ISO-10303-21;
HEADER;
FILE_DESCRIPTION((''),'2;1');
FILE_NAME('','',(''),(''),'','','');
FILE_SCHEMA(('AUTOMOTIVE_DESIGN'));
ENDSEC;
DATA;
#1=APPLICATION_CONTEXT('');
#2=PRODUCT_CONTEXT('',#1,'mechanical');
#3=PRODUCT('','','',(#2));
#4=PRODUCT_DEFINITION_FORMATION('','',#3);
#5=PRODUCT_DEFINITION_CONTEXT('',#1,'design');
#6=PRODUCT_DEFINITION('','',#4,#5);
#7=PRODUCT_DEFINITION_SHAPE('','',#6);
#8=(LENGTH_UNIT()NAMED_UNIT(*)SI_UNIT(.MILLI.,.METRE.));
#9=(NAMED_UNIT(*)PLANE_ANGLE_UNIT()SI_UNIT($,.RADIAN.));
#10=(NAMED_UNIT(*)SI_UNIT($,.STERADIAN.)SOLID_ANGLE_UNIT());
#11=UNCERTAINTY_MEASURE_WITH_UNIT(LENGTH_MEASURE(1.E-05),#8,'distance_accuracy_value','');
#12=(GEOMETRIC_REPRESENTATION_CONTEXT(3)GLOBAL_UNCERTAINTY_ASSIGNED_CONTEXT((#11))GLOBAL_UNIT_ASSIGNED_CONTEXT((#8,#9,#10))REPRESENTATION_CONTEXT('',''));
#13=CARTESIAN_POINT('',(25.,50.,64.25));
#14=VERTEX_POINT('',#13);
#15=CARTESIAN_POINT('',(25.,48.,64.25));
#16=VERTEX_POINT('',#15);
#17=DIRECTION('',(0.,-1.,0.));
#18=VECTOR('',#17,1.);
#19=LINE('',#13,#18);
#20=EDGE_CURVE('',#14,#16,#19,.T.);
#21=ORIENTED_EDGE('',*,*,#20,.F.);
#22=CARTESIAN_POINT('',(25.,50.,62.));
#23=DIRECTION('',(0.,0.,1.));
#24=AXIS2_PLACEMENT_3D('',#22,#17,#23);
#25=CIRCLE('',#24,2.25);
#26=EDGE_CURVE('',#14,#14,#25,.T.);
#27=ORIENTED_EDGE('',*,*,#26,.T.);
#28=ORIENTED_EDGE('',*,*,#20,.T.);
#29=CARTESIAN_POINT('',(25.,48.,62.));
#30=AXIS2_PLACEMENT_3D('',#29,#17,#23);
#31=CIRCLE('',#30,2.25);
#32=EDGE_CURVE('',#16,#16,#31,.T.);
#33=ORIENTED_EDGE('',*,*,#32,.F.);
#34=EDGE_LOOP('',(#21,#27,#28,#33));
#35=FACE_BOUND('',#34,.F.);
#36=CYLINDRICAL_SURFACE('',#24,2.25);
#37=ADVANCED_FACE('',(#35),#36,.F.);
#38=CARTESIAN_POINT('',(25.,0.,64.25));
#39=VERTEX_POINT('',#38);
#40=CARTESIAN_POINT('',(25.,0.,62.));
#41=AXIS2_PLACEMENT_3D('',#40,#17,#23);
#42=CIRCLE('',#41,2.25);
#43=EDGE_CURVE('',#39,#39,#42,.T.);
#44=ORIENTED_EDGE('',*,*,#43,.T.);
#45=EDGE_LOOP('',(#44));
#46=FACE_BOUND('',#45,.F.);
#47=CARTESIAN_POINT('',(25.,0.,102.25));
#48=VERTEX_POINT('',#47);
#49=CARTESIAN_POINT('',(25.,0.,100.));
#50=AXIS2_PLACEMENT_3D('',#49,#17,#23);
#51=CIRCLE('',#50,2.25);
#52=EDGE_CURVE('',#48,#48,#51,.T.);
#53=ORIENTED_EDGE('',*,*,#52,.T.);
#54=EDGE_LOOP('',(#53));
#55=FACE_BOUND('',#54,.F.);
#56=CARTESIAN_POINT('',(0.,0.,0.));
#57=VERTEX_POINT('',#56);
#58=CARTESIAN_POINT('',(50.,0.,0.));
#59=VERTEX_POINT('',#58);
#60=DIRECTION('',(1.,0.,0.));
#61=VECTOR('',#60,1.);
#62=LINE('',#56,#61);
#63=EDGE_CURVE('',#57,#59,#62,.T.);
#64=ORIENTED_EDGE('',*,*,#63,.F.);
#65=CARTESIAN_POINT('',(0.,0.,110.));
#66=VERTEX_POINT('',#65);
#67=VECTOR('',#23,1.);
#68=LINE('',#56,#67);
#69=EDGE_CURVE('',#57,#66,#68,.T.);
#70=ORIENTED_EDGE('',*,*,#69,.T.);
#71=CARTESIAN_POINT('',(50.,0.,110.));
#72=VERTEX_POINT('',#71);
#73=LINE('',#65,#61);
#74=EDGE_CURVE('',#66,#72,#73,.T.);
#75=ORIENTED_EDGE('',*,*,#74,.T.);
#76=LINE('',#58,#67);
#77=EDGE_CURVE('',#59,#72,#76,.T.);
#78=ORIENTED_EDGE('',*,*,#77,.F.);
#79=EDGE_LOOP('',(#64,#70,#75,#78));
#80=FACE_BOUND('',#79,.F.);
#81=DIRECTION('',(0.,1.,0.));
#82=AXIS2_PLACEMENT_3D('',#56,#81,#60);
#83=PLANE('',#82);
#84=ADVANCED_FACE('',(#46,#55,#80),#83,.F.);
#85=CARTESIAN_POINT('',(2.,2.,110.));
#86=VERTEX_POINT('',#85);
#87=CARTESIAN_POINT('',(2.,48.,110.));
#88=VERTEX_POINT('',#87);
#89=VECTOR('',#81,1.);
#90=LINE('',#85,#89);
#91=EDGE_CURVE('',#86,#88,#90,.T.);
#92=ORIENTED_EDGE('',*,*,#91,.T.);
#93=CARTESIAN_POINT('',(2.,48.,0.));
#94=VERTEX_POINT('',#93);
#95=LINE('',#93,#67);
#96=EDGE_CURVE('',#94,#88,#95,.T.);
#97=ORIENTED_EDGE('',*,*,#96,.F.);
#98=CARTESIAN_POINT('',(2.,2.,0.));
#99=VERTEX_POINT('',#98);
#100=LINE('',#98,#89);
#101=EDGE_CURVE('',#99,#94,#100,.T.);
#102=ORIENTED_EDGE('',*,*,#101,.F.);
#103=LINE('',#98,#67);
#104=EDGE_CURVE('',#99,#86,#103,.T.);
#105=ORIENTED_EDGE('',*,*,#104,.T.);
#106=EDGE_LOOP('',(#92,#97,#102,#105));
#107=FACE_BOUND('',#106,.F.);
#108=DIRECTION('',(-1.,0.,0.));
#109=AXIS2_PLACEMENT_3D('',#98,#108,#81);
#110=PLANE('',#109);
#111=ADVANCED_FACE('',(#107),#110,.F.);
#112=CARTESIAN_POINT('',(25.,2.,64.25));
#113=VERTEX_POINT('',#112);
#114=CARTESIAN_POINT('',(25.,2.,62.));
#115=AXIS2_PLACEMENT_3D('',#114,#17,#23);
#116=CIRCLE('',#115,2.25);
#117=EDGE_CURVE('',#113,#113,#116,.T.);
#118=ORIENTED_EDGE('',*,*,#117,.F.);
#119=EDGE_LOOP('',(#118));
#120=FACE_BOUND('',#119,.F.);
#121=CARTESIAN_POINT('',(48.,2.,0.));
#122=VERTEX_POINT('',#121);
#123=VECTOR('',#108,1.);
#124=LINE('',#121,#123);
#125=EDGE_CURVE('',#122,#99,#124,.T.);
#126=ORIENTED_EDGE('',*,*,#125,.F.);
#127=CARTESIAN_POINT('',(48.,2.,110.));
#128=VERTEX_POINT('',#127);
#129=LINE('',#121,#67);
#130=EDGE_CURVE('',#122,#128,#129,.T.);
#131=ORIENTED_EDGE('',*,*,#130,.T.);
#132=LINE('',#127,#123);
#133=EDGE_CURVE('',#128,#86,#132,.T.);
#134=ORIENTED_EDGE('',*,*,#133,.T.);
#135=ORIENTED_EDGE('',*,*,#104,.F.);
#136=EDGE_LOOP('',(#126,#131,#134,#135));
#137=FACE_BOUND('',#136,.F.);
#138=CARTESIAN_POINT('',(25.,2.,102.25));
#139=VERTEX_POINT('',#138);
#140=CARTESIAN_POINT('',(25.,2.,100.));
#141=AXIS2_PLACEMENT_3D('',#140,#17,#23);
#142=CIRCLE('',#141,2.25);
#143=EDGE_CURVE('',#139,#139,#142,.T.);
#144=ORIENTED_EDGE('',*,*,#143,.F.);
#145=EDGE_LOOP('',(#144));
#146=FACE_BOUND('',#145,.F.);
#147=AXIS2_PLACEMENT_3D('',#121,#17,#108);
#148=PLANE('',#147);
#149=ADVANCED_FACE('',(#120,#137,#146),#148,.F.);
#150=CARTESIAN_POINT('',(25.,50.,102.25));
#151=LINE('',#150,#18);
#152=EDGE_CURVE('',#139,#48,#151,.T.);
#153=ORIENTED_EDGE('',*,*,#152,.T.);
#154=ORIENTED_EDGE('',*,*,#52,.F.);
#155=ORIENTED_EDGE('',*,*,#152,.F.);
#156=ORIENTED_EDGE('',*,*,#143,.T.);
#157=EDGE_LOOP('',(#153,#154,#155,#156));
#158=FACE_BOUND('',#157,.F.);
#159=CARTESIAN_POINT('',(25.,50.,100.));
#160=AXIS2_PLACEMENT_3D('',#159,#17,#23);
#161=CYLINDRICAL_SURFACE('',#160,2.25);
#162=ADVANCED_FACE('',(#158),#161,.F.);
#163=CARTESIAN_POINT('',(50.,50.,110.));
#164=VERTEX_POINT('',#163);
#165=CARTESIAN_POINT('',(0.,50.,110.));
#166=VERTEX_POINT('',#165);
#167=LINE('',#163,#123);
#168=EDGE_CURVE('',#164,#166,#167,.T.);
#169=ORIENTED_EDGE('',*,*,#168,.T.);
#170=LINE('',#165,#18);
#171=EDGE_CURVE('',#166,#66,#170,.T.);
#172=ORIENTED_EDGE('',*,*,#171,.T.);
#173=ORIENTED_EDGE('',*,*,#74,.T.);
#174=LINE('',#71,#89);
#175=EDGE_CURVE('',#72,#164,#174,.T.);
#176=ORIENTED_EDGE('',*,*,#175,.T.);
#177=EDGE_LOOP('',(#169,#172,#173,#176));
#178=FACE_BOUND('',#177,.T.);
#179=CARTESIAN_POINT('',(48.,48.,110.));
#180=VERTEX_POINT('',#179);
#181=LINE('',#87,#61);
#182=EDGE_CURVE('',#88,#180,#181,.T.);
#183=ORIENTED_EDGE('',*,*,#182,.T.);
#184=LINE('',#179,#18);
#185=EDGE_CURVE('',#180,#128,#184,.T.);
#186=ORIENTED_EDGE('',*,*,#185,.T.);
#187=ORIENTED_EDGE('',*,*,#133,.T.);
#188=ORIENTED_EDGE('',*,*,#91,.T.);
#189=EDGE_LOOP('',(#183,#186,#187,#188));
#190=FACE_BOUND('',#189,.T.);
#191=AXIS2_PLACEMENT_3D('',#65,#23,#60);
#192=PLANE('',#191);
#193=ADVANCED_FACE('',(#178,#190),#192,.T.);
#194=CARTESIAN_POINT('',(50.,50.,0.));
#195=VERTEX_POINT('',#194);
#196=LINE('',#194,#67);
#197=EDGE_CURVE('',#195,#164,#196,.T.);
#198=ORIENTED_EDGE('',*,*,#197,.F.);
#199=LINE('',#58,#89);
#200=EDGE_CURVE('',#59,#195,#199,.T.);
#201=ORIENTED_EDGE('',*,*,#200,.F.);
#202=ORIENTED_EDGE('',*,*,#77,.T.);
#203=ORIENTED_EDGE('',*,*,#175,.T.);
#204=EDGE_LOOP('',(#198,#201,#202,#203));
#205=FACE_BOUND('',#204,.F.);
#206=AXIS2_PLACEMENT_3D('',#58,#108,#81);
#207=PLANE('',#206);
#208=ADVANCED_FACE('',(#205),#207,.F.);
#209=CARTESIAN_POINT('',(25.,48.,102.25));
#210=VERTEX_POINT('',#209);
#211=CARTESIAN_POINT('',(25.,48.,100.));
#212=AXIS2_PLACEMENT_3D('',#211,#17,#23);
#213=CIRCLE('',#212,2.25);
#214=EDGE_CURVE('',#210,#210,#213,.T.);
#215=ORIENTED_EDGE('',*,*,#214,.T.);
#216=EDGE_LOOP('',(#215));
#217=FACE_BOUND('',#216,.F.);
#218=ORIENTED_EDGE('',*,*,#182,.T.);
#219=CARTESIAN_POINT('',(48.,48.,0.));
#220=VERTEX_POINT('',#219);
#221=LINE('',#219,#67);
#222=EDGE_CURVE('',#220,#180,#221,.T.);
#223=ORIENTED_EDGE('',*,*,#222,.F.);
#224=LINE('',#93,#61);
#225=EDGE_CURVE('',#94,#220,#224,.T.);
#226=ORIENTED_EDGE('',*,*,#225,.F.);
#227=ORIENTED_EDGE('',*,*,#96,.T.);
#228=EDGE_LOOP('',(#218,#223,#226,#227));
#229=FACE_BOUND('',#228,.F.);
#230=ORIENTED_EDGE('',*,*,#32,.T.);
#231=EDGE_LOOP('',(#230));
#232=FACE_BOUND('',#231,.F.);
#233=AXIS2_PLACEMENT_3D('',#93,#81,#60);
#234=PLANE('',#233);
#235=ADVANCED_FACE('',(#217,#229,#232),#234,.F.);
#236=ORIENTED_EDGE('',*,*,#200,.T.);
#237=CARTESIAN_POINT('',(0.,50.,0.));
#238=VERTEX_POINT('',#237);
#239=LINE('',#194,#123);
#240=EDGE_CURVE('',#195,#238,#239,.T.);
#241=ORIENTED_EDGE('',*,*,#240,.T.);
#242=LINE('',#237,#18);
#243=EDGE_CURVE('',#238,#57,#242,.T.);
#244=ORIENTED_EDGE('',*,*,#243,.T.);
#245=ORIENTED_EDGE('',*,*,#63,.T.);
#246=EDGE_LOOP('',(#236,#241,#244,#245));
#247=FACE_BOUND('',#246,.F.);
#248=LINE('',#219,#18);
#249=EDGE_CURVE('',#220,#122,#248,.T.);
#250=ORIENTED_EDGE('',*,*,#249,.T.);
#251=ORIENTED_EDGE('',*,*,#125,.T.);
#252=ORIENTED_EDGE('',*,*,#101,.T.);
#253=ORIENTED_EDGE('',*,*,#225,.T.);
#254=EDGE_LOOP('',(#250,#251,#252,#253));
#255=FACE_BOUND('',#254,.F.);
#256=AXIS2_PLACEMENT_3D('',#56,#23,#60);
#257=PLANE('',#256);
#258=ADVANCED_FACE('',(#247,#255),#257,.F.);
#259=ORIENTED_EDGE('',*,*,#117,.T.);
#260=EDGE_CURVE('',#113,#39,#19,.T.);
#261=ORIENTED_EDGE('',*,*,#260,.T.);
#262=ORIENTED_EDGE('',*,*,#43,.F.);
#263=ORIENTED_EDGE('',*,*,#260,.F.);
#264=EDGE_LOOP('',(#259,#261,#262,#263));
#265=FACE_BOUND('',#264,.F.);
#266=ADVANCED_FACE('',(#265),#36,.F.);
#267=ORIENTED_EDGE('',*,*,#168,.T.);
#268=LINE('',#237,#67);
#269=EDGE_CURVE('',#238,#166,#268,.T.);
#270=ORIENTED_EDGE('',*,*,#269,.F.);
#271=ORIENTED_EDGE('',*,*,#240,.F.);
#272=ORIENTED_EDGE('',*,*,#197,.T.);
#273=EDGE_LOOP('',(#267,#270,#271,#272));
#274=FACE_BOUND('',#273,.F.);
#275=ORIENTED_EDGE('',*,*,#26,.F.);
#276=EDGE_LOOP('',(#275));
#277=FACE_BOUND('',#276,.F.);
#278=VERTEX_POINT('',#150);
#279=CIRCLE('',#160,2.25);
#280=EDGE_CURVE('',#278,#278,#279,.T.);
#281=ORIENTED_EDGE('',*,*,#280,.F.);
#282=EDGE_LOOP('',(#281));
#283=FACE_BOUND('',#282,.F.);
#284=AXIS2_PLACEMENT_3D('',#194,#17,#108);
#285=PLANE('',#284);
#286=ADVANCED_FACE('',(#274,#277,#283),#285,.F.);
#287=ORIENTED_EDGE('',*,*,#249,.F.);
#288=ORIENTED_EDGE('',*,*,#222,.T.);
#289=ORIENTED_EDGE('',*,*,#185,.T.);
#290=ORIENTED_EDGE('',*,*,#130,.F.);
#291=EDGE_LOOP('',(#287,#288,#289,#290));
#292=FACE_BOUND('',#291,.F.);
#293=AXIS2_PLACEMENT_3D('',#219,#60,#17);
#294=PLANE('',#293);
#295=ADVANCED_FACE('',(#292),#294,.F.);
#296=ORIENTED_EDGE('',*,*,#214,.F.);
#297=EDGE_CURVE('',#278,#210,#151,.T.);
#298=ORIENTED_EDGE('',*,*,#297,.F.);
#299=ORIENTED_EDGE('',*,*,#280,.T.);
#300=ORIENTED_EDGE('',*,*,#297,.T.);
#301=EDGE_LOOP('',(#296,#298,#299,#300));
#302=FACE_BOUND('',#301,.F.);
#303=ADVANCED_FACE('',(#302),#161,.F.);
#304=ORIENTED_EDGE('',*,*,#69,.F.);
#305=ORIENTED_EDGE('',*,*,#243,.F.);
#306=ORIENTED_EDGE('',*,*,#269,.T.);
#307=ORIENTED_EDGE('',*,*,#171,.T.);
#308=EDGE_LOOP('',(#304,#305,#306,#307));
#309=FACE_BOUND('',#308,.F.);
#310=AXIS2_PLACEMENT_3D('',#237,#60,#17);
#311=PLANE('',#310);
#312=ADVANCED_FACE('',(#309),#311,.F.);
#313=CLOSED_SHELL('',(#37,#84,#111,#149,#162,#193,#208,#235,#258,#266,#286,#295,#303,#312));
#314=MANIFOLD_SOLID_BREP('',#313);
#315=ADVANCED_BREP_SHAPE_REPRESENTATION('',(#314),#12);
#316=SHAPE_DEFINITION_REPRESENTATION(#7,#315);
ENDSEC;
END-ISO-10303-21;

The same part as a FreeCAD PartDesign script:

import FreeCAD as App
import Part
import Sketcher
from FreeCAD import Vector
Q = App.Units.Quantity


def add_polygon(sketch, points):
    """Adds a closed chain of lines whose ends are joined by coincident constraints."""
    first, n = sketch.GeometryCount, len(points)
    for a, b in zip(points, points[1:] + points[:1]):
        sketch.addGeometry(Part.LineSegment(App.Vector(*a, 0), App.Vector(*b, 0)), False)
    for i in range(n):
        sketch.addConstraint(Sketcher.Constraint("Coincident", first + i, 2, first + (i + 1) % n, 1))

doc = App.newDocument("Part")
params = doc.addObject("Spreadsheet::Sheet", "Params")
for row, (alias, value) in enumerate([
    ("sketch1_width", "50 mm"),
    ("pad1_length", "110 mm"),
    ("sketch2_diameter", "4.5 mm"),
    ("hole_diameter", "4.5 mm"),
], start=1):
    params.set(f"A{row}", alias)
    params.set(f"B{row}", "=" + value)
    params.setAlias(f"B{row}", alias)

body = doc.addObject("PartDesign::Body", "Body")

sketch1 = body.newObject("Sketcher::SketchObject", "Sketch")
sketch1.AttachmentSupport = (doc.getObject("XY_Plane"), [""])
sketch1.MapMode = "FlatFace"
add_polygon(sketch1, [(0, 50), (0, 0), (50, 0), (50, 50)])
add_polygon(sketch1, [(2, 2), (2, 48), (48, 48), (48, 2)])
sketch1.addConstraint([
    Sketcher.Constraint("Vertical", 0),
    Sketcher.Constraint("Horizontal", 1),
    Sketcher.Constraint("Vertical", 2),
    Sketcher.Constraint("Horizontal", 3),
    Sketcher.Constraint("Vertical", 4),
    Sketcher.Constraint("Horizontal", 5),
    Sketcher.Constraint("Vertical", 6),
    Sketcher.Constraint("Horizontal", 7),
    Sketcher.Constraint("Coincident", 0, 2, -1, 1),
    Sketcher.Constraint("Equal", 3, 0),
    Sketcher.Constraint("Equal", 7, 4),
    Sketcher.Constraint("DistanceX", 1, 1, 1, 2, Q("50 mm")),
    Sketcher.Constraint("DistanceX", -1, 1, 4, 2, Q("2 mm")),
    Sketcher.Constraint("DistanceY", -1, 1, 6, 2, Q("2 mm")),
    Sketcher.Constraint("DistanceY", 4, 2, 3, 2, Q("2 mm")),
])
sketch1.setExpression("Constraints[19]", "Params.sketch1_width")
pad1 = body.newObject("PartDesign::Pad", "Pad")
pad1.Profile = sketch1
pad1.setExpression("Length", "Params.pad1_length")

sketch2 = body.newObject("Sketcher::SketchObject", "Sketch001")
sketch2.AttachmentSupport = (doc.getObject("XZ_Plane"), [""])
sketch2.MapMode = "FlatFace"
sketch2.AttachmentOffset = App.Placement(Vector(0, 0, -50), App.Rotation())
sketch2.addGeometry([
    Part.Circle(Vector(25, 62, 0), Vector(0, 0, 1), 2.25),
    Part.Circle(Vector(25, 100, 0), Vector(0, 0, 1), 2.25),
], False)
sketch2.addConstraint([
    Sketcher.Constraint("Equal", 0, 1),
    Sketcher.Constraint("Vertical", 0, 3, 1, 3),
    Sketcher.Constraint("Diameter", 0, Q("4.5 mm")),
    Sketcher.Constraint("DistanceX", -1, 1, 0, 3, Q("25 mm")),
    Sketcher.Constraint("DistanceY", -1, 1, 0, 3, Q("62 mm")),
    Sketcher.Constraint("DistanceY", -1, 1, 1, 3, Q("100 mm")),
])
sketch2.setExpression("Constraints[2]", "Params.sketch2_diameter")
doc.recompute()
hole = body.newObject("PartDesign::Hole", "Hole")
hole.Profile = sketch2
hole.ThreadType = "None"
hole.setExpression("Diameter", "Params.hole_diameter")
hole.DepthType = "ThroughAll"
hole.Reversed = True

doc.recompute()
